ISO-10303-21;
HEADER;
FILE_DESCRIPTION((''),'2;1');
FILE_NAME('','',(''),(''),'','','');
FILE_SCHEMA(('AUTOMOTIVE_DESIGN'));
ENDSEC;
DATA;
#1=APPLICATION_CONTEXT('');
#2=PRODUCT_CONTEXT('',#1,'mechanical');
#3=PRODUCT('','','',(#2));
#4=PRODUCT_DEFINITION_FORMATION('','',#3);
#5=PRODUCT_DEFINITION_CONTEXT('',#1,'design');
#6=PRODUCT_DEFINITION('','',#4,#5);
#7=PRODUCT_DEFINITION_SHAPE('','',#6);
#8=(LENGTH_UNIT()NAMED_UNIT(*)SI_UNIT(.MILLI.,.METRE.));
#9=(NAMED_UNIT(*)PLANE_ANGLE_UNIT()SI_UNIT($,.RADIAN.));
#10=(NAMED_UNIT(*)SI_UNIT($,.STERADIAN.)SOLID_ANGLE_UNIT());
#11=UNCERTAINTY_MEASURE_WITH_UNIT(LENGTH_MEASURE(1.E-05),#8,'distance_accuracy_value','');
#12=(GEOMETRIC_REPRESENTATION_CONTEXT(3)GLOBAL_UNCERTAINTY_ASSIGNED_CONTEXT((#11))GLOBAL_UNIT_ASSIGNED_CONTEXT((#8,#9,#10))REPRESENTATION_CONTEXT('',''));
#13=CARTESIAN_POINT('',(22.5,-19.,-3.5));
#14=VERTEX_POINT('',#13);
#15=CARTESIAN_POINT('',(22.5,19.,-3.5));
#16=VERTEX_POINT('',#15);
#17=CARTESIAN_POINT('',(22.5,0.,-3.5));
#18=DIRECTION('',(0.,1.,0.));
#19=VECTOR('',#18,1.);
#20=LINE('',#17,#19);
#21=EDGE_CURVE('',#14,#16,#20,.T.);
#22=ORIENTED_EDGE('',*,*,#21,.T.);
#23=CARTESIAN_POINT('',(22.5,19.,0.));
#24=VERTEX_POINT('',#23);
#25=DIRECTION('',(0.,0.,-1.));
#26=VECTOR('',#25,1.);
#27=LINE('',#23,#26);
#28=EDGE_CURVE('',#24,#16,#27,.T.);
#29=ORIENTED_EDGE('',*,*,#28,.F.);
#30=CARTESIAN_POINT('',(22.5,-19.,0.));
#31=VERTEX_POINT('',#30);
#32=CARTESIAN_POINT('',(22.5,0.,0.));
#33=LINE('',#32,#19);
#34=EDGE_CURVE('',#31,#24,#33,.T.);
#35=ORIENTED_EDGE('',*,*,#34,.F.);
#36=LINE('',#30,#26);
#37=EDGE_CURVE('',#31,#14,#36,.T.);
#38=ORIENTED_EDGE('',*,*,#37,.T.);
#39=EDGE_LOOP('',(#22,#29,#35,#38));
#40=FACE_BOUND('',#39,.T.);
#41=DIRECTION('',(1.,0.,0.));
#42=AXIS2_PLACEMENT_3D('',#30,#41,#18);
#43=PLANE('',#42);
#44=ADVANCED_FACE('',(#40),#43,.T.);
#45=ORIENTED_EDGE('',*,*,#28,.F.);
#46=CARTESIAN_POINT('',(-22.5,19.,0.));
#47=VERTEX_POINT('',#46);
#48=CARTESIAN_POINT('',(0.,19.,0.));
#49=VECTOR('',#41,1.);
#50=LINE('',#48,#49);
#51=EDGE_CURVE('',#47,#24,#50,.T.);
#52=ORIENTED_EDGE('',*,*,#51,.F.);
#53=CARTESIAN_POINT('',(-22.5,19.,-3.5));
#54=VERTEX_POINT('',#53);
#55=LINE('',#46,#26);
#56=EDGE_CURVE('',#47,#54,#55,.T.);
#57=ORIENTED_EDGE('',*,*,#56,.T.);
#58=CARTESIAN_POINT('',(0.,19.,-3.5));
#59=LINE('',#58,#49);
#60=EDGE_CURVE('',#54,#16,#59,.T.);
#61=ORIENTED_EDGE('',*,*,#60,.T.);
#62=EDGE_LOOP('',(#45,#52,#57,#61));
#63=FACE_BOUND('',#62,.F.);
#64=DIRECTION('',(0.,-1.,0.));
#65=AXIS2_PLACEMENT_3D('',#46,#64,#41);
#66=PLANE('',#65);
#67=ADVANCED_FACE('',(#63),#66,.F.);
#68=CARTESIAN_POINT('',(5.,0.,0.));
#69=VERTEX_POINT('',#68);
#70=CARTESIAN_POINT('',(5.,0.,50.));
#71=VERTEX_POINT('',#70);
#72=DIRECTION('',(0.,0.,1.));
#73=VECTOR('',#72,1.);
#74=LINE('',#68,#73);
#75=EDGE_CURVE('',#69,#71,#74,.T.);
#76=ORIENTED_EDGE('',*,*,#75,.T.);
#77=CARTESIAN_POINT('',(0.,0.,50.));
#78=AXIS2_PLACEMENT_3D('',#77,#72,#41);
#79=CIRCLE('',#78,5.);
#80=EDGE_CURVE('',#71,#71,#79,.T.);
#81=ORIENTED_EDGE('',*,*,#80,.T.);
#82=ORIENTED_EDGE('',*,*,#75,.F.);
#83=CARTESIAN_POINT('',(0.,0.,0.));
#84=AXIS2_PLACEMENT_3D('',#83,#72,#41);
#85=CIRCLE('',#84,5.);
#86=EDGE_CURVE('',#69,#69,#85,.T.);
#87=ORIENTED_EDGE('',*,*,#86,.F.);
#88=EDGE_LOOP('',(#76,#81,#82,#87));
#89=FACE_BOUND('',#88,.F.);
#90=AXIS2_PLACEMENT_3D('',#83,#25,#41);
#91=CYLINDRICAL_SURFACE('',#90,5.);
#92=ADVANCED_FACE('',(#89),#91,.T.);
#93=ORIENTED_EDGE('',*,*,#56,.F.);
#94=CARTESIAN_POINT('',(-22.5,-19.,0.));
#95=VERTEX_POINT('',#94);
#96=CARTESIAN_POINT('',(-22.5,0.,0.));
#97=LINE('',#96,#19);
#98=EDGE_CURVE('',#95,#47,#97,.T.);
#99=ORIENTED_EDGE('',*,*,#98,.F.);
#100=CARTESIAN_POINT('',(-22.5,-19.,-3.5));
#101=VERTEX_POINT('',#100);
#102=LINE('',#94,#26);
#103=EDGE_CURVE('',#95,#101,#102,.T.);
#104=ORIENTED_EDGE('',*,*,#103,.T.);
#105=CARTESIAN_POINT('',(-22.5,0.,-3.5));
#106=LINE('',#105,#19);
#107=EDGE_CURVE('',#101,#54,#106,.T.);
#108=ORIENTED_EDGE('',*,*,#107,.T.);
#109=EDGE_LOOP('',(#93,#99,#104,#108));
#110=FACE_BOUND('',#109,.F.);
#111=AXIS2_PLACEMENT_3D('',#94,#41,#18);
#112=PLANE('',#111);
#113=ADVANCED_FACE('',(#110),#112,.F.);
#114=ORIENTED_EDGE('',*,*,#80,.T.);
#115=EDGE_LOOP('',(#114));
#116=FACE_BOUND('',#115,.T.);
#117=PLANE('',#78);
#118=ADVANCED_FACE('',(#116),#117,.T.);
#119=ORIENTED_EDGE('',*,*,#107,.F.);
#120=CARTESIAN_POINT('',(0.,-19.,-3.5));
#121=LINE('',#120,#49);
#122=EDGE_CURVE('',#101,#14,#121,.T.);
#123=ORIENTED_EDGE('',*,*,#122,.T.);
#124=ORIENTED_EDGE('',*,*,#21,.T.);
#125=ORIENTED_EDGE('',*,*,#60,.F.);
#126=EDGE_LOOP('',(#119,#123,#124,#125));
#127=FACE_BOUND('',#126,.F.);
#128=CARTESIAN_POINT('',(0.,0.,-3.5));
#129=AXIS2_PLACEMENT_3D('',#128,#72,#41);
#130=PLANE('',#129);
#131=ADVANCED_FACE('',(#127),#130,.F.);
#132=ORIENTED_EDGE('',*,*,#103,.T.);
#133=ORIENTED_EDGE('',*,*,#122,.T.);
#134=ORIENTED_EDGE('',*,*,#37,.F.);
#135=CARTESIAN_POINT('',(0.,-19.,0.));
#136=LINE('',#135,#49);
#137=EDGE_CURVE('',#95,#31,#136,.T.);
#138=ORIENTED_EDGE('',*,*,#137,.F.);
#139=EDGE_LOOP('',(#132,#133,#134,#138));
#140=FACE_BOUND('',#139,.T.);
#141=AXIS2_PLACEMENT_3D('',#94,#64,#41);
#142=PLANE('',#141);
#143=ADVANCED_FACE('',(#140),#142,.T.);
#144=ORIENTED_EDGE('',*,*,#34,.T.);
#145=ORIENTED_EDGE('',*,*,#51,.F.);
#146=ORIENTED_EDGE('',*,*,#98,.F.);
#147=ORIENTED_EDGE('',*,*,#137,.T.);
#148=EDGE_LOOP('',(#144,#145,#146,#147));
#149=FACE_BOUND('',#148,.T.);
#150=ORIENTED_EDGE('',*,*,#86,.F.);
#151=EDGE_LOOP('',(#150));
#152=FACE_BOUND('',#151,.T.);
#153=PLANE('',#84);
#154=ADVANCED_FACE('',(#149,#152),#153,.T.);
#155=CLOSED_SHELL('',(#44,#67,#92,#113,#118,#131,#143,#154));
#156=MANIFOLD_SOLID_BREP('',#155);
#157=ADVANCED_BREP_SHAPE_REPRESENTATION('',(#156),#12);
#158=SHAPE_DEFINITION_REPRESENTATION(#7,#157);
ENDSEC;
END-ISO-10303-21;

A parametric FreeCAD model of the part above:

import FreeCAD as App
import Part
import Sketcher
from FreeCAD import Vector


def add_polygon(sketch, points):
    """Adds a closed chain of lines whose ends are joined by coincident constraints."""
    first, n = sketch.GeometryCount, len(points)
    for a, b in zip(points, points[1:] + points[:1]):
        sketch.addGeometry(Part.LineSegment(App.Vector(*a, 0), App.Vector(*b, 0)), False)
    for i in range(n):
        sketch.addConstraint(Sketcher.Constraint("Coincident", first + i, 2, first + (i + 1) % n, 1))

doc = App.newDocument("Part")
body = doc.addObject("PartDesign::Body", "Body")

# Sketch on XY plane
sketch1 = body.newObject("Sketcher::SketchObject", "Sketch")
sketch1.AttachmentSupport = (doc.getObject("XY_Plane"), [""])
sketch1.MapMode = "FlatFace"
add_polygon(sketch1, [(-22, 19), (-22, -19), (22, -19), (22, 19)])  # lines 0-3
sketch1.addConstraint([
    Sketcher.Constraint("Vertical", 0),
    Sketcher.Constraint("Horizontal", 1),
    Sketcher.Constraint("Vertical", 2),
    Sketcher.Constraint("Horizontal", 3),
    Sketcher.Constraint("Symmetric", 0, 2, 2, 2, -1, 1),
    Sketcher.Constraint("DistanceX", 1, 1, 1, 2, 45.0),
    Sketcher.Constraint("DistanceY", 0, 2, 0, 1, 38.0),
])
pad1 = body.newObject("PartDesign::Pad", "Pad")
pad1.Profile = sketch1
pad1.Length = 3.5
pad1.Reversed = True

# Sketch on XY plane
sketch2 = body.newObject("Sketcher::SketchObject", "Sketch001")
sketch2.AttachmentSupport = (doc.getObject("XY_Plane"), [""])
sketch2.MapMode = "FlatFace"
sketch2.addGeometry(Part.Circle(Vector(0, 0, 0), Vector(0, 0, 1), 5), False)
sketch2.addConstraint([
    Sketcher.Constraint("Coincident", 0, 3, -1, 1),
    Sketcher.Constraint("Diameter", 0, 10.0),
])
pad2 = body.newObject("PartDesign::Pad", "Pad001")
pad2.Profile = sketch2
pad2.Length = 50

doc.recompute()
